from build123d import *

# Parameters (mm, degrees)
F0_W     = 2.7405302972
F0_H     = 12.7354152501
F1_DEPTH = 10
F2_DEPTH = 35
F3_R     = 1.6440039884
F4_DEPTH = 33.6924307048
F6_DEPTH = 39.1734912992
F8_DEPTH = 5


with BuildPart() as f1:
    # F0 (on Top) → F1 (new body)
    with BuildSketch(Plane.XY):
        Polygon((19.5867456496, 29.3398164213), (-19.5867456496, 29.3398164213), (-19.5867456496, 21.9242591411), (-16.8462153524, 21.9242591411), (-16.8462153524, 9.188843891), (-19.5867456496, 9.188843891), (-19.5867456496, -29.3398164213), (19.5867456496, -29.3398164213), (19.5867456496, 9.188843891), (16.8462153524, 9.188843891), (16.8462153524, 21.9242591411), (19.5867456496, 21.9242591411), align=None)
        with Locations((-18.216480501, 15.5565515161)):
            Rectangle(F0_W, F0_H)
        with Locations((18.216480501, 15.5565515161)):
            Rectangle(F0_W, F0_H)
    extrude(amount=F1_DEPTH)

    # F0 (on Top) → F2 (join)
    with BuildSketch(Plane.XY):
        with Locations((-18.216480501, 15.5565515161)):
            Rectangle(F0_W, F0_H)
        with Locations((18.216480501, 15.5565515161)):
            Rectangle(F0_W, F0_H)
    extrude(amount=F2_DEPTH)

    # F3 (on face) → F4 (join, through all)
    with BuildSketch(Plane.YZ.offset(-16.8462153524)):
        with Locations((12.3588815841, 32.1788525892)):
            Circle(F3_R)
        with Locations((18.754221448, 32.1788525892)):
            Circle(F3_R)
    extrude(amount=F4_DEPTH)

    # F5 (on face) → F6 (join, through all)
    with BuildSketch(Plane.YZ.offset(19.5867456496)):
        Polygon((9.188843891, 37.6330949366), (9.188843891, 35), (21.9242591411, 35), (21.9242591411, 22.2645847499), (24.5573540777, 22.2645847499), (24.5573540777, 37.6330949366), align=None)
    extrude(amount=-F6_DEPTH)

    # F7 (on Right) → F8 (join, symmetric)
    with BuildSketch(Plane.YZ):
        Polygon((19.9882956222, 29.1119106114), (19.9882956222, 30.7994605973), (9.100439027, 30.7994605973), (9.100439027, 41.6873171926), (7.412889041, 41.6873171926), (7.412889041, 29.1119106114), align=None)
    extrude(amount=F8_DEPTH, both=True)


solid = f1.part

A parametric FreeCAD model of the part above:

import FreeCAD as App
import Part
import Sketcher

V = App.Vector


def add_polygon(sketch, points):
    """Adds a closed chain of lines whose ends are joined by coincident constraints."""
    first, n = sketch.GeometryCount, len(points)
    for a, b in zip(points, points[1:] + points[:1]):
        sketch.addGeometry(Part.LineSegment(App.Vector(*a, 0), App.Vector(*b, 0)), False)
    for i in range(n):
        sketch.addConstraint(Sketcher.Constraint("Coincident", first + i, 2, first + (i + 1) % n, 1))

doc = App.newDocument("Part")
body = doc.addObject("PartDesign::Body", "Body")

# Sketch on XY plane
sketch1 = body.newObject("Sketcher::SketchObject", "Sketch")
sketch1.AttachmentSupport = (doc.getObject("XY_Plane"), [""])
sketch1.MapMode = "FlatFace"
add_polygon(sketch1, [(20, 29), (-20, 29), (-20, -29), (20, -29)])  # lines 0-3
sketch1.addConstraint(Sketcher.Constraint("Horizontal", 0))
sketch1.addConstraint(Sketcher.Constraint("Vertical", 1))
sketch1.addConstraint(Sketcher.Constraint("Horizontal", 2))
sketch1.addConstraint(Sketcher.Constraint("Vertical", 3))
sketch1.addConstraint(Sketcher.Constraint("Symmetric", 0, 2, 2, 2, -1, 1))
sketch1.addConstraint(Sketcher.Constraint("DistanceX", 0, 2, 0, 1, 39.173491))
sketch1.addConstraint(Sketcher.Constraint("DistanceY", 1, 2, 1, 1, 58.679633))
pad1 = body.newObject("PartDesign::Pad", "Pad")
pad1.Profile = sketch1
pad1.Length = 10

# Sketch on XY plane
sketch2 = body.newObject("Sketcher::SketchObject", "Sketch001")
sketch2.AttachmentSupport = (doc.getObject("XY_Plane"), [""])
sketch2.MapMode = "FlatFace"
add_polygon(sketch2, [(-19.6, 21.9), (-19.6, 9.2), (-16.8, 9.2), (-16.8, 21.9)])  # lines 0-3
add_polygon(sketch2, [(16.8, 21.9), (16.8, 9.2), (19.6, 9.2), (19.6, 21.9)])  # lines 4-7
sketch2.addConstraint(Sketcher.Constraint("Vertical", 0))
sketch2.addConstraint(Sketcher.Constraint("Horizontal", 1))
sketch2.addConstraint(Sketcher.Constraint("Vertical", 2))
sketch2.addConstraint(Sketcher.Constraint("Horizontal", 3))
sketch2.addConstraint(Sketcher.Constraint("Vertical", 4))
sketch2.addConstraint(Sketcher.Constraint("Horizontal", 5))
sketch2.addConstraint(Sketcher.Constraint("Vertical", 6))
sketch2.addConstraint(Sketcher.Constraint("Horizontal", 7))
sketch2.addConstraint(Sketcher.Constraint("Symmetric", 1, 2, 4, 2, -2))
sketch2.addConstraint(Sketcher.Constraint("Symmetric", 3, 2, 6, 2, -2))
sketch2.addConstraint(Sketcher.Constraint("DistanceX", 1, 1, 1, 2, 2.74053))
sketch2.addConstraint(Sketcher.Constraint("DistanceY", 0, 2, 0, 1, 12.735415))
sketch2.addConstraint(Sketcher.Constraint("DistanceY", -1, 1, 2, 2, 21.924259))
sketch2.addConstraint(Sketcher.Constraint("DistanceX", 1, 2, 4, 2, 33.692431))
pad2 = body.newObject("PartDesign::Pad", "Pad001")
pad2.Profile = sketch2
pad2.Length = 35

# Sketch on YZ plane
sketch3 = body.newObject("Sketcher::SketchObject", "Sketch002")
sketch3.AttachmentSupport = (doc.getObject("YZ_Plane"), [""])
sketch3.MapMode = "FlatFace"
sketch3.AttachmentOffset = App.Placement(V(0, 0, -16.846215), App.Rotation())
sketch3.addGeometry(Part.Circle(V(12.4, 32.2, 0), V(0, 0, 1), 1.6), False)
sketch3.addGeometry(Part.Circle(V(18.8, 32.2, 0), V(0, 0, 1), 1.6), False)
sketch3.addConstraint(Sketcher.Constraint("Equal", 0, 1))
sketch3.addConstraint(Sketcher.Constraint("Horizontal", 0, 3, 1, 3))
sketch3.addConstraint(Sketcher.Constraint("Diameter", 0, 3.288008))
sketch3.addConstraint(Sketcher.Constraint("DistanceX", -1, 1, 0, 3, 12.358882))
sketch3.addConstraint(Sketcher.Constraint("DistanceX", -1, 1, 1, 3, 18.754221))
sketch3.addConstraint(Sketcher.Constraint("DistanceY", -1, 1, 0, 3, 32.178853))
pad3 = body.newObject("PartDesign::Pad", "Pad002")
pad3.Profile = sketch3
pad3.Type = "UpToLast"

# Sketch on YZ plane
sketch4 = body.newObject("Sketcher::SketchObject", "Sketch003")
sketch4.AttachmentSupport = (doc.getObject("YZ_Plane"), [""])
sketch4.MapMode = "FlatFace"
sketch4.AttachmentOffset = App.Placement(V(0, 0, 19.586746), App.Rotation())
add_polygon(sketch4, [(9.2, 37.6), (9.2, 35), (21.9, 35), (21.9, 22.3), (24.6, 22.3), (24.6, 37.6)])  # lines 0-5
sketch4.addConstraint(Sketcher.Constraint("Vertical", 0))
sketch4.addConstraint(Sketcher.Constraint("Horizontal", 1))
sketch4.addConstraint(Sketcher.Constraint("Vertical", 2))
sketch4.addConstraint(Sketcher.Constraint("Horizontal", 3))
sketch4.addConstraint(Sketcher.Constraint("Vertical", 4))
sketch4.addConstraint(Sketcher.Constraint("Horizontal", 5))
sketch4.addConstraint(Sketcher.Constraint("Equal", 3, 0))
sketch4.addConstraint(Sketcher.Constraint("Equal", 1, 2))
sketch4.addConstraint(Sketcher.Constraint("DistanceY", -1, 1, 0, 2, 35.0))
sketch4.addConstraint(Sketcher.Constraint("DistanceX", 5, 2, 5, 1, 15.36851))
sketch4.addConstraint(Sketcher.Constraint("DistanceX", 1, 1, 1, 2, 12.735415))
sketch4.addConstraint(Sketcher.Constraint("DistanceX", -1, 1, 1, 2, 21.924259))
pad4 = body.newObject("PartDesign::Pad", "Pad003")
pad4.Profile = sketch4
pad4.Type = "UpToLast"
pad4.Reversed = True

# Sketch on YZ plane
sketch5 = body.newObject("Sketcher::SketchObject", "Sketch004")
sketch5.AttachmentSupport = (doc.getObject("YZ_Plane"), [""])
sketch5.MapMode = "FlatFace"
add_polygon(sketch5, [(20, 29.1), (20, 30.8), (9.1, 30.8), (9.1, 41.7), (7.4, 41.7), (7.4, 29.1)])  # lines 0-5
sketch5.addConstraint(Sketcher.Constraint("Vertical", 0))
sketch5.addConstraint(Sketcher.Constraint("Horizontal", 1))
sketch5.addConstraint(Sketcher.Constraint("Vertical", 2))
sketch5.addConstraint(Sketcher.Constraint("Horizontal", 3))
sketch5.addConstraint(Sketcher.Constraint("Vertical", 4))
sketch5.addConstraint(Sketcher.Constraint("Horizontal", 5))
sketch5.addConstraint(Sketcher.Constraint("Equal", 3, 0))
sketch5.addConstraint(Sketcher.Constraint("Equal", 1, 2))
sketch5.addConstraint(Sketcher.Constraint("DistanceX", 3, 2, 3, 1, 1.68755))
sketch5.addConstraint(Sketcher.Constraint("DistanceX", 1, 2, 1, 1, 10.887857))
sketch5.addConstraint(Sketcher.Constraint("DistanceY", -1, 1, 0, 2, 30.799461))
sketch5.addConstraint(Sketcher.Constraint("DistanceX", -1, 1, 1, 2, 9.100439))
pad5 = body.newObject("PartDesign::Pad", "Pad004")
pad5.Profile = sketch5
pad5.Length = 10
pad5.Midplane = True

doc.recompute()
